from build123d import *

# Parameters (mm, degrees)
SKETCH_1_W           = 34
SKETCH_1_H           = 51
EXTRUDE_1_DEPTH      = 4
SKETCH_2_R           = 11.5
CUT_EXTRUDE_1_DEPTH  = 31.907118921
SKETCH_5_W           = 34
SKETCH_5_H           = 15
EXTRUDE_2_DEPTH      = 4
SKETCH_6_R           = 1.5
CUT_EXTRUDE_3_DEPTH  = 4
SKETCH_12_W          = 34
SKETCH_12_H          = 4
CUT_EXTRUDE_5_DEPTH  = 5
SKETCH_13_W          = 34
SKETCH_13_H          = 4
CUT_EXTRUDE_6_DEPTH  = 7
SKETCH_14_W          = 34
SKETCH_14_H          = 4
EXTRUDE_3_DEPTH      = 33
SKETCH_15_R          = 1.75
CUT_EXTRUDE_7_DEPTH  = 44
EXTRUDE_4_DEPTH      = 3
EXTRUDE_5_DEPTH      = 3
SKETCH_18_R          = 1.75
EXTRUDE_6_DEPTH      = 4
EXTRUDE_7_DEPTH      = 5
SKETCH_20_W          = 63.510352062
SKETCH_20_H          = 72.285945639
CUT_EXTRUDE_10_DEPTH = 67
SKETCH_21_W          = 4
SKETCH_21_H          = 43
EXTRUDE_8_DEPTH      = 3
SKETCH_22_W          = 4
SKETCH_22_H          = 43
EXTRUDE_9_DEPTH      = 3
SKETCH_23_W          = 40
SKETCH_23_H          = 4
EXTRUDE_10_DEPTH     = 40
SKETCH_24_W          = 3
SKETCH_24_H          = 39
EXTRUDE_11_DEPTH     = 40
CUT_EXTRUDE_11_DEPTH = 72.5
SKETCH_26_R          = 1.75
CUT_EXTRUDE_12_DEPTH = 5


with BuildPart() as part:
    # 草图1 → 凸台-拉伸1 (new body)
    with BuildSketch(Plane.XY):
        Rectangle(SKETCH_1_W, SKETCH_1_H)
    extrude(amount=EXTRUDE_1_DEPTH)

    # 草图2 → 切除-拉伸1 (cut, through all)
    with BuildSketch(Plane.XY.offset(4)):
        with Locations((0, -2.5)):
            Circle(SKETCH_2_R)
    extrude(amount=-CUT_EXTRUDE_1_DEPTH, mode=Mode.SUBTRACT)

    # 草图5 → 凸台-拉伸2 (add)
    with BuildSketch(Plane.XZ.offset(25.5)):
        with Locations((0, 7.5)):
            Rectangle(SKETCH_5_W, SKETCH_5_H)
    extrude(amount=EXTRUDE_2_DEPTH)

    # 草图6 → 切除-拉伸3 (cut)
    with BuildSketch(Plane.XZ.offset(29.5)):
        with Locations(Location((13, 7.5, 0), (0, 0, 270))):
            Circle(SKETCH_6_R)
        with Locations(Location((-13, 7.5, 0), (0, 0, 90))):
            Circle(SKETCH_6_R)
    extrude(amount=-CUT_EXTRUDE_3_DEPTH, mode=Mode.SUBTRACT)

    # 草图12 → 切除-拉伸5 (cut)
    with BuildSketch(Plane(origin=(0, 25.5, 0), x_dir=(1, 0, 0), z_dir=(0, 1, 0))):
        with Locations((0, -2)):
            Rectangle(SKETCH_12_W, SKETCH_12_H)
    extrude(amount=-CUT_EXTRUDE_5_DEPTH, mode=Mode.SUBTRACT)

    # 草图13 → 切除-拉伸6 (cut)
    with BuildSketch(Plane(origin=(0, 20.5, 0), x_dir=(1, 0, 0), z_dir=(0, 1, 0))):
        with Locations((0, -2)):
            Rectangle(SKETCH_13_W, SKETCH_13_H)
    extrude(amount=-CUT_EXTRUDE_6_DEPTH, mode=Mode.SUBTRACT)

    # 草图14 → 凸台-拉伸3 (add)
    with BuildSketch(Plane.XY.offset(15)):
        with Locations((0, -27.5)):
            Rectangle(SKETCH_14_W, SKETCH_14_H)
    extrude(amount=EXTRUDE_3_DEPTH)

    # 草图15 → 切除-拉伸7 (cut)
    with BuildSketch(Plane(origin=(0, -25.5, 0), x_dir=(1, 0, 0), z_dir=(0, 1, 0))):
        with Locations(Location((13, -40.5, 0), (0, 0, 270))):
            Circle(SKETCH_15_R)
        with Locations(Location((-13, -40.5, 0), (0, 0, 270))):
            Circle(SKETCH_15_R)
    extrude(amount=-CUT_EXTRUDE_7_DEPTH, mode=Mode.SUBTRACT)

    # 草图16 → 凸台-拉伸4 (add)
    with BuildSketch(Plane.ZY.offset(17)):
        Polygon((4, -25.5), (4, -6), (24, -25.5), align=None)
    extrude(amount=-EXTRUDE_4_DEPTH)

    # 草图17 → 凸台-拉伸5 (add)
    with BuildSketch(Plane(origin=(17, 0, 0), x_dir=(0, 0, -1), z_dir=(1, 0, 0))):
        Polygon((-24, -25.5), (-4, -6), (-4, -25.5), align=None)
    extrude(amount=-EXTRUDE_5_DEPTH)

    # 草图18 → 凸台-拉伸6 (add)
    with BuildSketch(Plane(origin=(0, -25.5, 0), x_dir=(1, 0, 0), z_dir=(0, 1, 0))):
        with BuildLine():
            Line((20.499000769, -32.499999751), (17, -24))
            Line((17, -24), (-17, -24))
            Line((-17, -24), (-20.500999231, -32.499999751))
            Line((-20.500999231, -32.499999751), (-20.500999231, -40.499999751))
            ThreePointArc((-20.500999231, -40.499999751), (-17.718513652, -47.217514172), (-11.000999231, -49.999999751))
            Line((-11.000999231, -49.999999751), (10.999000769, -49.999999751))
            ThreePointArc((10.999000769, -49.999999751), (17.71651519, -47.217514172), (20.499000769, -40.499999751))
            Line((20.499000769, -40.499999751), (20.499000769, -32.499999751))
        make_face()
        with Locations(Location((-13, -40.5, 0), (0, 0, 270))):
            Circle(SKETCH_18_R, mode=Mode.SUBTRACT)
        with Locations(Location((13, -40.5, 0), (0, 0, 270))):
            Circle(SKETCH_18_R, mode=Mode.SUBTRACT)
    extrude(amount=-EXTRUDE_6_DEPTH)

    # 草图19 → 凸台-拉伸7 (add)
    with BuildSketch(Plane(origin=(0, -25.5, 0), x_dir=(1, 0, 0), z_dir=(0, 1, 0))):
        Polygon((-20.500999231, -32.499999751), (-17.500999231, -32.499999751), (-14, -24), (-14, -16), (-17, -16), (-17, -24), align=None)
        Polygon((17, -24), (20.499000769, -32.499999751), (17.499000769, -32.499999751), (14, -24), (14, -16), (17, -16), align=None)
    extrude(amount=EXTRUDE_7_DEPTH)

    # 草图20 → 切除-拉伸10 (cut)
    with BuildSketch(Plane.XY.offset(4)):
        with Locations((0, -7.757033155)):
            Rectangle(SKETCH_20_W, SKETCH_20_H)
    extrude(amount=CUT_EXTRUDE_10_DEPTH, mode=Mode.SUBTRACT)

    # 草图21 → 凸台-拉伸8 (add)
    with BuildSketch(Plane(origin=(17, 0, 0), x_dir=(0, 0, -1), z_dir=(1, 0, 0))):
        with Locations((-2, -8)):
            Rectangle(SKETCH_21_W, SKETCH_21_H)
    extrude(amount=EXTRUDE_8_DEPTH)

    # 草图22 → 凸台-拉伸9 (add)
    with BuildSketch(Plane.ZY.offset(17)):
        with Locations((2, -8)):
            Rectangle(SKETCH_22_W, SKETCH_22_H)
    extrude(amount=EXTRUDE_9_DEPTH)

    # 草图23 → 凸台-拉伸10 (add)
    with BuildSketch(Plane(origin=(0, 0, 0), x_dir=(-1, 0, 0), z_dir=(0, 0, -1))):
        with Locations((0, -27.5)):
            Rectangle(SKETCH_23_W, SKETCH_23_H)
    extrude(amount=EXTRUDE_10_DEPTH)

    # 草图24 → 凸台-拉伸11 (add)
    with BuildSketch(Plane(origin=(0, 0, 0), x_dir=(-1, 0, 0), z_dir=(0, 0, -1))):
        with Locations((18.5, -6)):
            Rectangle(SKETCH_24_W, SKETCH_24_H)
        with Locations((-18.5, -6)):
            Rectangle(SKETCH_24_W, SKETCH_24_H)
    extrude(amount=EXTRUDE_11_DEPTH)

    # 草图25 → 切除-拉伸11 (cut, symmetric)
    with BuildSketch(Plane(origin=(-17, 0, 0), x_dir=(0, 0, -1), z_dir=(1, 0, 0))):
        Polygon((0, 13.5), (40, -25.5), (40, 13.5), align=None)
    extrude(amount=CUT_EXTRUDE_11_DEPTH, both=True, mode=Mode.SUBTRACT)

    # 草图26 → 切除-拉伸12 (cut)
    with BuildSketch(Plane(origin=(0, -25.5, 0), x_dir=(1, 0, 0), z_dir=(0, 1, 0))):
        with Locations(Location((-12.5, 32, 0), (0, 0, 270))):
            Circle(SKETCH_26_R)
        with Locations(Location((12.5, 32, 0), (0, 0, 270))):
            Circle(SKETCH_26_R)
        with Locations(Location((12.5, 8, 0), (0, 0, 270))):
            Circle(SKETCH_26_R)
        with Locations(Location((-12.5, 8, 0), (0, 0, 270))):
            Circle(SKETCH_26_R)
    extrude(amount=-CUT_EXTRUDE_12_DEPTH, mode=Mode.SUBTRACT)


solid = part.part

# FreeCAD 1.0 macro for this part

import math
import FreeCAD as App
import Part
import Sketcher
from FreeCAD import Vector
Q = App.Units.Quantity

doc = App.newDocument("Part")
params = doc.addObject("Spreadsheet::Sheet", "Params")
for row, (alias, value) in enumerate([
    ("sketch1_width", "34 mm"),
    ("sketch1_height", "51 mm"),
    ("pad1_length", "4 mm"),
    ("sketch2_diameter", "23 mm"),
    ("sketch3_width", "34 mm"),
    ("sketch3_height", "15 mm"),
    ("pad2_length", "4 mm"),
    ("sketch4_diameter", "3 mm"),
    ("pocket2_length", "4 mm"),
    ("sketch5_width", "34 mm"),
    ("sketch5_height", "4 mm"),
    ("pocket3_length", "5 mm"),
    ("sketch6_width", "34 mm"),
    ("sketch6_height", "4 mm"),
    ("pocket4_length", "7 mm"),
    ("sketch7_width", "34 mm"),
    ("sketch7_height", "4 mm"),
    ("pad3_length", "33 mm"),
    ("sketch8_diameter", "3.5 mm"),
    ("pocket5_length", "44 mm"),
    ("sketch9_height", "20 mm"),
    ("sketch9_width", "19.5 mm"),
    ("pad4_length", "3 mm"),
    ("sketch10_height", "20 mm"),
    ("sketch10_width", "19.5 mm"),
    ("pad5_length", "3 mm"),
    ("sketch11_diameter", "3.5 mm"),
    ("sketch11_radius", "9.5 mm"),
    ("sketch11_width", "34 mm"),
    ("sketch11_width2", "22 mm"),
    ("sketch11_height", "8 mm"),
    ("pad6_length", "4 mm"),
    ("sketch12_width", "3 mm"),
    ("sketch12_height", "8 mm"),
    ("pad7_length", "5 mm"),
    ("pocket6_length", "67 mm"),
    ("sketch14_width", "43 mm"),
    ("sketch14_height", "4 mm"),
    ("pad8_length", "3 mm"),
    ("sketch15_width", "43 mm"),
    ("sketch15_height", "4 mm"),
    ("pad9_length", "3 mm"),
    ("sketch16_width", "40 mm"),
    ("sketch16_height", "4 mm"),
    ("pad10_length", "40 mm"),
    ("sketch17_width", "3 mm"),
    ("sketch17_height", "39 mm"),
    ("pad11_length", "40 mm"),
    ("sketch18_width", "39 mm"),
    ("sketch18_height", "40 mm"),
    ("pocket7_length", "145 mm"),
    ("sketch19_diameter", "3.5 mm"),
    ("pocket8_length", "5 mm"),
], start=1):
    params.set(f"A{row}", alias)
    params.set(f"B{row}", "=" + value)
    params.setAlias(f"B{row}", alias)

body = doc.addObject("PartDesign::Body", "Body")

sketch1 = body.newObject("Sketcher::SketchObject", "Sketch")
sketch1.AttachmentSupport = (doc.getObject("XY_Plane"), [""])
sketch1.MapMode = "FlatFace"
sketch1.addGeometry([
    Part.LineSegment(Vector(-17, 26, 0), Vector(-17, -26, 0)),
    Part.LineSegment(Vector(-17, -26, 0), Vector(17, -26, 0)),
    Part.LineSegment(Vector(17, -26, 0), Vector(17, 26, 0)),
    Part.LineSegment(Vector(17, 26, 0), Vector(-17, 26, 0)),
], False)
sketch1.addConstraint([
    Sketcher.Constraint("Coincident", 0, 2, 1, 1),
    Sketcher.Constraint("Coincident", 1, 2, 2, 1),
    Sketcher.Constraint("Coincident", 2, 2, 3, 1),
    Sketcher.Constraint("Coincident", 3, 2, 0, 1),
    Sketcher.Constraint("Vertical", 0),
    Sketcher.Constraint("Horizontal", 1),
    Sketcher.Constraint("Vertical", 2),
    Sketcher.Constraint("Horizontal", 3),
    Sketcher.Constraint("Symmetric", 0, 2, 2, 2, -1, 1),
    Sketcher.Constraint("DistanceX", 1, 1, 1, 2, Q("34 mm")),
    Sketcher.Constraint("DistanceY", 0, 2, 0, 1, Q("51 mm")),
])
sketch1.setExpression("Constraints[9]", "Params.sketch1_width")
sketch1.setExpression("Constraints[10]", "Params.sketch1_height")
pad1 = body.newObject("PartDesign::Pad", "Pad")
pad1.Profile = sketch1
pad1.setExpression("Length", "Params.pad1_length")

sketch2 = body.newObject("Sketcher::SketchObject", "Sketch001")
sketch2.AttachmentSupport = (doc.getObject("XY_Plane"), [""])
sketch2.MapMode = "FlatFace"
sketch2.AttachmentOffset = App.Placement(Vector(0, 0, 4), App.Rotation())
sketch2.addGeometry(Part.Circle(Vector(0, -2, 0), Vector(0, 0, 1), 12), False)
sketch2.addConstraint([
    Sketcher.Constraint("PointOnObject", 0, 3, -2),
    Sketcher.Constraint("Diameter", 0, Q("23 mm")),
    Sketcher.Constraint("DistanceY", 0, 3, -1, 1, Q("2.5 mm")),
])
sketch2.setExpression("Constraints[1]", "Params.sketch2_diameter")
pocket1 = body.newObject("PartDesign::Pocket", "Pocket")
pocket1.Profile = sketch2
pocket1.Type = "ThroughAll"

sketch3 = body.newObject("Sketcher::SketchObject", "Sketch002")
sketch3.AttachmentSupport = (doc.getObject("XZ_Plane"), [""])
sketch3.MapMode = "FlatFace"
sketch3.AttachmentOffset = App.Placement(Vector(0, 0, 25.5), App.Rotation())
sketch3.addGeometry([
    Part.LineSegment(Vector(-17, 15, 0), Vector(-17, 0, 0)),
    Part.LineSegment(Vector(-17, 0, 0), Vector(17, 0, 0)),
    Part.LineSegment(Vector(17, 0, 0), Vector(17, 15, 0)),
    Part.LineSegment(Vector(17, 15, 0), Vector(-17, 15, 0)),
], False)
sketch3.addConstraint([
    Sketcher.Constraint("Coincident", 0, 2, 1, 1),
    Sketcher.Constraint("Coincident", 1, 2, 2, 1),
    Sketcher.Constraint("Coincident", 2, 2, 3, 1),
    Sketcher.Constraint("Coincident", 3, 2, 0, 1),
    Sketcher.Constraint("Vertical", 0),
    Sketcher.Constraint("Horizontal", 1),
    Sketcher.Constraint("Vertical", 2),
    Sketcher.Constraint("Horizontal", 3),
    Sketcher.Constraint("Symmetric", 0, 2, 1, 2, -1, 1),
    Sketcher.Constraint("DistanceX", 1, 1, 1, 2, Q("34 mm")),
    Sketcher.Constraint("DistanceY", 0, 2, 0, 1, Q("15 mm")),
])
sketch3.setExpression("Constraints[9]", "Params.sketch3_width")
sketch3.setExpression("Constraints[10]", "Params.sketch3_height")
pad2 = body.newObject("PartDesign::Pad", "Pad001")
pad2.Profile = sketch3
pad2.setExpression("Length", "Params.pad2_length")

sketch4 = body.newObject("Sketcher::SketchObject", "Sketch003")
sketch4.AttachmentSupport = (doc.getObject("XZ_Plane"), [""])
sketch4.MapMode = "FlatFace"
sketch4.AttachmentOffset = App.Placement(Vector(0, 0, 29.5), App.Rotation())
sketch4.addGeometry([
    Part.Circle(Vector(13, 7.5, 0), Vector(0, 0, 1), 1.5),
    Part.Circle(Vector(-13, 7.5, 0), Vector(0, 0, 1), 1.5),
], False)
sketch4.addConstraint([
    Sketcher.Constraint("Equal", 0, 1),
    Sketcher.Constraint("Symmetric", 0, 3, 1, 3, -2),
    Sketcher.Constraint("Diameter", 0, Q("3 mm")),
    Sketcher.Constraint("DistanceX", -1, 1, 0, 3, Q("13 mm")),
    Sketcher.Constraint("DistanceY", -1, 1, 0, 3, Q("7.5 mm")),
])
sketch4.setExpression("Constraints[2]", "Params.sketch4_diameter")
pocket2 = body.newObject("PartDesign::Pocket", "Pocket001")
pocket2.Profile = sketch4
pocket2.setExpression("Length", "Params.pocket2_length")

sketch5 = body.newObject("Sketcher::SketchObject", "Sketch004")
sketch5.AttachmentSupport = (doc.getObject("XZ_Plane"), [""])
sketch5.MapMode = "FlatFace"
sketch5.AttachmentOffset = App.Placement(Vector(0, 0, -25.5), App.Rotation())
sketch5.addGeometry([
    Part.LineSegment(Vector(-17, 0, 0), Vector(-17, 4, 0)),
    Part.LineSegment(Vector(-17, 4, 0), Vector(17, 4, 0)),
    Part.LineSegment(Vector(17, 4, 0), Vector(17, 0, 0)),
    Part.LineSegment(Vector(17, 0, 0), Vector(-17, 0, 0)),
], False)
sketch5.addConstraint([
    Sketcher.Constraint("Coincident", 0, 2, 1, 1),
    Sketcher.Constraint("Coincident", 1, 2, 2, 1),
    Sketcher.Constraint("Coincident", 2, 2, 3, 1),
    Sketcher.Constraint("Coincident", 3, 2, 0, 1),
    Sketcher.Constraint("Vertical", 0),
    Sketcher.Constraint("Horizontal", 1),
    Sketcher.Constraint("Vertical", 2),
    Sketcher.Constraint("Horizontal", 3),
    Sketcher.Constraint("Symmetric", 2, 2, 3, 2, -1, 1),
    Sketcher.Constraint("DistanceX", 1, 1, 1, 2, Q("34 mm")),
    Sketcher.Constraint("DistanceY", 0, 1, 0, 2, Q("4 mm")),
])
sketch5.setExpression("Constraints[9]", "Params.sketch5_width")
sketch5.setExpression("Constraints[10]", "Params.sketch5_height")
pocket3 = body.newObject("PartDesign::Pocket", "Pocket002")
pocket3.Profile = sketch5
pocket3.setExpression("Length", "Params.pocket3_length")
pocket3.Reversed = True

sketch6 = body.newObject("Sketcher::SketchObject", "Sketch005")
sketch6.AttachmentSupport = (doc.getObject("XZ_Plane"), [""])
sketch6.MapMode = "FlatFace"
sketch6.AttachmentOffset = App.Placement(Vector(0, 0, -20.5), App.Rotation())
sketch6.addGeometry([
    Part.LineSegment(Vector(-17, 0, 0), Vector(-17, 4, 0)),
    Part.LineSegment(Vector(-17, 4, 0), Vector(17, 4, 0)),
    Part.LineSegment(Vector(17, 4, 0), Vector(17, 0, 0)),
    Part.LineSegment(Vector(17, 0, 0), Vector(-17, 0, 0)),
], False)
sketch6.addConstraint([
    Sketcher.Constraint("Coincident", 0, 2, 1, 1),
    Sketcher.Constraint("Coincident", 1, 2, 2, 1),
    Sketcher.Constraint("Coincident", 2, 2, 3, 1),
    Sketcher.Constraint("Coincident", 3, 2, 0, 1),
    Sketcher.Constraint("Vertical", 0),
    Sketcher.Constraint("Horizontal", 1),
    Sketcher.Constraint("Vertical", 2),
    Sketcher.Constraint("Horizontal", 3),
    Sketcher.Constraint("Symmetric", 2, 2, 3, 2, -1, 1),
    Sketcher.Constraint("DistanceX", 1, 1, 1, 2, Q("34 mm")),
    Sketcher.Constraint("DistanceY", 0, 1, 0, 2, Q("4 mm")),
])
sketch6.setExpression("Constraints[9]", "Params.sketch6_width")
sketch6.setExpression("Constraints[10]", "Params.sketch6_height")
pocket4 = body.newObject("PartDesign::Pocket", "Pocket003")
pocket4.Profile = sketch6
pocket4.setExpression("Length", "Params.pocket4_length")
pocket4.Reversed = True

sketch7 = body.newObject("Sketcher::SketchObject", "Sketch006")
sketch7.AttachmentSupport = (doc.getObject("XY_Plane"), [""])
sketch7.MapMode = "FlatFace"
sketch7.AttachmentOffset = App.Placement(Vector(0, 0, 15), App.Rotation())
sketch7.addGeometry([
    Part.LineSegment(Vector(-17, -25.5, 0), Vector(-17, -29.5, 0)),
    Part.LineSegment(Vector(-17, -29.5, 0), Vector(17, -29.5, 0)),
    Part.LineSegment(Vector(17, -29.5, 0), Vector(17, -25.5, 0)),
    Part.LineSegment(Vector(17, -25.5, 0), Vector(-17, -25.5, 0)),
], False)
sketch7.addConstraint([
    Sketcher.Constraint("Coincident", 0, 2, 1, 1),
    Sketcher.Constraint("Coincident", 1, 2, 2, 1),
    Sketcher.Constraint("Coincident", 2, 2, 3, 1),
    Sketcher.Constraint("Coincident", 3, 2, 0, 1),
    Sketcher.Constraint("Vertical", 0),
    Sketcher.Constraint("Horizontal", 1),
    Sketcher.Constraint("Vertical", 2),
    Sketcher.Constraint("Horizontal", 3),
    Sketcher.Constraint("DistanceX", 1, 1, 1, 2, Q("34 mm")),
    Sketcher.Constraint("DistanceY", 0, 2, 0, 1, Q("4 mm")),
    Sketcher.Constraint("DistanceX", 0, 2, -1, 1, Q("17 mm")),
    Sketcher.Constraint("DistanceY", 0, 2, -1, 1, Q("29.5 mm")),
])
sketch7.setExpression("Constraints[8]", "Params.sketch7_width")
sketch7.setExpression("Constraints[9]", "Params.sketch7_height")
pad3 = body.newObject("PartDesign::Pad", "Pad002")
pad3.Profile = sketch7
pad3.setExpression("Length", "Params.pad3_length")

sketch8 = body.newObject("Sketcher::SketchObject", "Sketch007")
sketch8.AttachmentSupport = (doc.getObject("XZ_Plane"), [""])
sketch8.MapMode = "FlatFace"
sketch8.AttachmentOffset = App.Placement(Vector(0, 0, 25.5), App.Rotation())
sketch8.addGeometry([
    Part.Circle(Vector(13, 40.5, 0), Vector(0, 0, 1), 1.8),
    Part.Circle(Vector(-13, 40.5, 0), Vector(0, 0, 1), 1.8),
], False)
sketch8.addConstraint([
    Sketcher.Constraint("Equal", 0, 1),
    Sketcher.Constraint("Symmetric", 0, 3, 1, 3, -2),
    Sketcher.Constraint("Diameter", 0, Q("3.5 mm")),
    Sketcher.Constraint("DistanceX", -1, 1, 0, 3, Q("13 mm")),
    Sketcher.Constraint("DistanceY", -1, 1, 0, 3, Q("40.5 mm")),
])
sketch8.setExpression("Constraints[2]", "Params.sketch8_diameter")
pocket5 = body.newObject("PartDesign::Pocket", "Pocket004")
pocket5.Profile = sketch8
pocket5.setExpression("Length", "Params.pocket5_length")
pocket5.Reversed = True

sketch9 = body.newObject("Sketcher::SketchObject", "Sketch008")
sketch9.AttachmentSupport = (doc.getObject("YZ_Plane"), [""])
sketch9.MapMode = "FlatFace"
sketch9.AttachmentOffset = App.Placement(Vector(0, 0, -17), App.Rotation())
sketch9.addGeometry([
    Part.LineSegment(Vector(-6, 4, 0), Vector(-26, 4, 0)),
    Part.LineSegment(Vector(-26, 4, 0), Vector(-26, 24, 0)),
    Part.LineSegment(Vector(-26, 24, 0), Vector(-6, 4, 0)),
], False)
sketch9.addConstraint([
    Sketcher.Constraint("Coincident", 0, 2, 1, 1),
    Sketcher.Constraint("Coincident", 1, 2, 2, 1),
    Sketcher.Constraint("Coincident", 2, 2, 0, 1),
    Sketcher.Constraint("Horizontal", 0),
    Sketcher.Constraint("Vertical", 1),
    Sketcher.Constraint("DistanceY", 1, 1, 1, 2, Q("20 mm")),
    Sketcher.Constraint("DistanceX", 0, 2, 0, 1, Q("19.5 mm")),
    Sketcher.Constraint("DistanceY", -1, 1, 0, 2, Q("4 mm")),
    Sketcher.Constraint("DistanceX", 2, 2, -1, 1, Q("6 mm")),
])
sketch9.setExpression("Constraints[5]", "Params.sketch9_height")
sketch9.setExpression("Constraints[6]", "Params.sketch9_width")
pad4 = body.newObject("PartDesign::Pad", "Pad003")
pad4.Profile = sketch9
pad4.setExpression("Length", "Params.pad4_length")

sketch10 = body.newObject("Sketcher::SketchObject", "Sketch009")
sketch10.AttachmentSupport = (doc.getObject("YZ_Plane"), [""])
sketch10.MapMode = "FlatFace"
sketch10.AttachmentOffset = App.Placement(Vector(0, 0, 17), App.Rotation())
sketch10.addGeometry([
    Part.LineSegment(Vector(-6, 4, 0), Vector(-26, 24, 0)),
    Part.LineSegment(Vector(-26, 24, 0), Vector(-26, 4, 0)),
    Part.LineSegment(Vector(-26, 4, 0), Vector(-6, 4, 0)),
], False)
sketch10.addConstraint([
    Sketcher.Constraint("Coincident", 0, 2, 1, 1),
    Sketcher.Constraint("Coincident", 1, 2, 2, 1),
    Sketcher.Constraint("Coincident", 2, 2, 0, 1),
    Sketcher.Constraint("Vertical", 1),
    Sketcher.Constraint("Horizontal", 2),
    Sketcher.Constraint("DistanceY", 1, 2, 1, 1, Q("20 mm")),
    Sketcher.Constraint("DistanceX", 2, 1, 2, 2, Q("19.5 mm")),
    Sketcher.Constraint("DistanceY", -1, 1, 0, 2, Q("24 mm")),
    Sketcher.Constraint("DistanceX", 2, 2, -1, 1, Q("6 mm")),
])
sketch10.setExpression("Constraints[5]", "Params.sketch10_height")
sketch10.setExpression("Constraints[6]", "Params.sketch10_width")
pad5 = body.newObject("PartDesign::Pad", "Pad004")
pad5.Profile = sketch10
pad5.setExpression("Length", "Params.pad5_length")
pad5.Reversed = True

sketch11 = body.newObject("Sketcher::SketchObject", "Sketch010")
sketch11.AttachmentSupport = (doc.getObject("XZ_Plane"), [""])
sketch11.MapMode = "FlatFace"
sketch11.AttachmentOffset = App.Placement(Vector(0, 0, 25.5), App.Rotation())
sketch11.addGeometry([
    Part.LineSegment(Vector(20.5, 32.5, 0), Vector(17, 24, 0)),
    Part.LineSegment(Vector(17, 24, 0), Vector(-17, 24, 0)),
    Part.LineSegment(Vector(-17, 24, 0), Vector(-20.5, 32.5, 0)),
    Part.LineSegment(Vector(-20.5, 32.5, 0), Vector(-20.5, 40.5, 0)),
    Part.ArcOfCircle(Part.Circle(Vector(-11, 40.5, 0), Vector(0, 0, 1), 9.5), math.radians(90), math.radians(180)),
    Part.LineSegment(Vector(-11, 50, 0), Vector(11, 50, 0)),
    Part.ArcOfCircle(Part.Circle(Vector(11, 40.5, 0), Vector(0, 0, 1), 9.5), math.radians(0), math.radians(90)),
    Part.LineSegment(Vector(20.5, 40.5, 0), Vector(20.5, 32.5, 0)),
    Part.Circle(Vector(-13, 40.5, 0), Vector(0, 0, 1), 1.8),
    Part.Circle(Vector(13, 40.5, 0), Vector(0, 0, 1), 1.8),
], False)
sketch11.addConstraint([
    Sketcher.Constraint("Coincident", 0, 2, 1, 1),
    Sketcher.Constraint("Coincident", 1, 2, 2, 1),
    Sketcher.Constraint("Coincident", 2, 2, 3, 1),
    Sketcher.Constraint("Tangent", 3, 2, 4, 2),
    Sketcher.Constraint("Tangent", 4, 1, 5, 1),
    Sketcher.Constraint("Tangent", 5, 2, 6, 2),
    Sketcher.Constraint("Tangent", 6, 1, 7, 1),
    Sketcher.Constraint("Coincident", 7, 2, 0, 1),
    Sketcher.Constraint("Horizontal", 1),
    Sketcher.Constraint("Vertical", 3),
    Sketcher.Constraint("Horizontal", 5),
    Sketcher.Constraint("Vertical", 7),
    Sketcher.Constraint("Equal", 4, 6),
    Sketcher.Constraint("Equal", 8, 9),
    Sketcher.Constraint("Symmetric", 8, 3, 9, 3, -2),
    Sketcher.Constraint("Horizontal", 6, 3, 8, 3),
    Sketcher.Constraint("Horizontal", 2, 2, 7, 2),
    Sketcher.Constraint("Diameter", 8, Q("3.5 mm")),
    Sketcher.Constraint("Radius", 4, Q("9.5 mm")),
    Sketcher.Constraint("DistanceX", 1, 2, 1, 1, Q("34 mm")),
    Sketcher.Constraint("DistanceX", 5, 1, 5, 2, Q("22 mm")),
    Sketcher.Constraint("DistanceY", 3, 1, 3, 2, Q("8 mm")),
    Sketcher.Constraint("DistanceX", 8, 3, -1, 1, Q("13 mm")),
    Sketcher.Constraint("DistanceX", -1, 1, 0, 2, Q("17 mm")),
    Sketcher.Constraint("DistanceY", -1, 1, 0, 2, Q("24 mm")),
    Sketcher.Constraint("DistanceY", -1, 1, 4, 1, Q("50 mm")),
    Sketcher.Constraint("DistanceX", 4, 3, -1, 1, Q("11.000999 mm")),
])
sketch11.setExpression("Constraints[17]", "Params.sketch11_diameter")
sketch11.setExpression("Constraints[18]", "Params.sketch11_radius")
sketch11.setExpression("Constraints[19]", "Params.sketch11_width")
sketch11.setExpression("Constraints[20]", "Params.sketch11_width2")
sketch11.setExpression("Constraints[21]", "Params.sketch11_height")
pad6 = body.newObject("PartDesign::Pad", "Pad005")
pad6.Profile = sketch11
pad6.setExpression("Length", "Params.pad6_length")

sketch12 = body.newObject("Sketcher::SketchObject", "Sketch011")
sketch12.AttachmentSupport = (doc.getObject("XZ_Plane"), [""])
sketch12.MapMode = "FlatFace"
sketch12.AttachmentOffset = App.Placement(Vector(0, 0, 25.5), App.Rotation())
sketch12.addGeometry([
    Part.LineSegment(Vector(-20.5, 32.5, 0), Vector(-17.5, 32.5, 0)),
    Part.LineSegment(Vector(-17.5, 32.5, 0), Vector(-14, 24, 0)),
    Part.LineSegment(Vector(-14, 24, 0), Vector(-14, 16, 0)),
    Part.LineSegment(Vector(-14, 16, 0), Vector(-17, 16, 0)),
    Part.LineSegment(Vector(-17, 16, 0), Vector(-17, 24, 0)),
    Part.LineSegment(Vector(-17, 24, 0), Vector(-20.5, 32.5, 0)),
    Part.LineSegment(Vector(20.5, 32.5, 0), Vector(17, 24, 0)),
    Part.LineSegment(Vector(17, 24, 0), Vector(17, 16, 0)),
    Part.LineSegment(Vector(17, 16, 0), Vector(14, 16, 0)),
    Part.LineSegment(Vector(14, 16, 0), Vector(14, 24, 0)),
    Part.LineSegment(Vector(14, 24, 0), Vector(17.5, 32.5, 0)),
    Part.LineSegment(Vector(17.5, 32.5, 0), Vector(20.5, 32.5, 0)),
], False)
sketch12.addConstraint([
    Sketcher.Constraint("Coincident", 0, 2, 1, 1),
    Sketcher.Constraint("Coincident", 1, 2, 2, 1),
    Sketcher.Constraint("Coincident", 2, 2, 3, 1),
    Sketcher.Constraint("Coincident", 3, 2, 4, 1),
    Sketcher.Constraint("Coincident", 4, 2, 5, 1),
    Sketcher.Constraint("Coincident", 5, 2, 0, 1),
    Sketcher.Constraint("Coincident", 6, 2, 7, 1),
    Sketcher.Constraint("Coincident", 7, 2, 8, 1),
    Sketcher.Constraint("Coincident", 8, 2, 9, 1),
    Sketcher.Constraint("Coincident", 9, 2, 10, 1),
    Sketcher.Constraint("Coincident", 10, 2, 11, 1),
    Sketcher.Constraint("Coincident", 11, 2, 6, 1),
    Sketcher.Constraint("Horizontal", 0),
    Sketcher.Constraint("Vertical", 2),
    Sketcher.Constraint("Horizontal", 3),
    Sketcher.Constraint("Vertical", 4),
    Sketcher.Constraint("Vertical", 7),
    Sketcher.Constraint("Horizontal", 8),
    Sketcher.Constraint("Vertical", 9),
    Sketcher.Constraint("Horizontal", 11),
    Sketcher.Constraint("Symmetric", 4, 2, 6, 2, -2),
    Sketcher.Constraint("Symmetric", 2, 2, 8, 2, -2),
    Sketcher.Constraint("Parallel", 1, 5),
    Sketcher.Constraint("Parallel", 6, 10),
    Sketcher.Constraint("Horizontal", 1, 2, 4, 2),
    Sketcher.Constraint("Horizontal", 6, 2, 9, 2),
    Sketcher.Constraint("Horizontal", 5, 2, 10, 2),
    Sketcher.Constraint("DistanceX", 0, 1, 0, 2, Q("3 mm")),
    Sketcher.Constraint("DistanceY", 2, 2, 2, 1, Q("8 mm")),
    Sketcher.Constraint("DistanceX", 1, 2, -1, 1, Q("14 mm")),
    Sketcher.Constraint("DistanceY", -1, 1, 1, 2, Q("24 mm")),
    Sketcher.Constraint("DistanceY", -1, 1, 0, 2, Q("32.5 mm")),
    Sketcher.Constraint("DistanceX", 0, 2, -1, 1, Q("17.500999 mm")),
    Sketcher.Constraint("DistanceX", -1, 1, 10, 2, Q("17.499001 mm")),
])
sketch12.setExpression("Constraints[27]", "Params.sketch12_width")
sketch12.setExpression("Constraints[28]", "Params.sketch12_height")
pad7 = body.newObject("PartDesign::Pad", "Pad006")
pad7.Profile = sketch12
pad7.setExpression("Length", "Params.pad7_length")
pad7.Reversed = True

sketch13 = body.newObject("Sketcher::SketchObject", "Sketch012")
sketch13.AttachmentSupport = (doc.getObject("XY_Plane"), [""])
sketch13.MapMode = "FlatFace"
sketch13.AttachmentOffset = App.Placement(Vector(0, 0, 4), App.Rotation())
sketch13.addGeometry([
    Part.LineSegment(Vector(-32, 28, 0), Vector(-32, -44, 0)),
    Part.LineSegment(Vector(-32, -44, 0), Vector(32, -44, 0)),
    Part.LineSegment(Vector(32, -44, 0), Vector(32, 28, 0)),
    Part.LineSegment(Vector(32, 28, 0), Vector(-32, 28, 0)),
], False)
sketch13.addConstraint([
    Sketcher.Constraint("Coincident", 0, 2, 1, 1),
    Sketcher.Constraint("Coincident", 1, 2, 2, 1),
    Sketcher.Constraint("Coincident", 2, 2, 3, 1),
    Sketcher.Constraint("Coincident", 3, 2, 0, 1),
    Sketcher.Constraint("Vertical", 0),
    Sketcher.Constraint("Horizontal", 1),
    Sketcher.Constraint("Vertical", 2),
    Sketcher.Constraint("Horizontal", 3),
    Sketcher.Constraint("DistanceX", 1, 1, 1, 2, Q("63.510352 mm")),
    Sketcher.Constraint("DistanceY", 0, 2, 0, 1, Q("72.285946 mm")),
    Sketcher.Constraint("DistanceY", -1, 1, 2, 2, Q("28.38594 mm")),
    Sketcher.Constraint("DistanceX", 0, 2, -1, 1, Q("31.755176 mm")),
])
pocket6 = body.newObject("PartDesign::Pocket", "Pocket005")
pocket6.Profile = sketch13
pocket6.setExpression("Length", "Params.pocket6_length")
pocket6.Reversed = True

sketch14 = body.newObject("Sketcher::SketchObject", "Sketch013")
sketch14.AttachmentSupport = (doc.getObject("YZ_Plane"), [""])
sketch14.MapMode = "FlatFace"
sketch14.AttachmentOffset = App.Placement(Vector(0, 0, 17), App.Rotation())
sketch14.addGeometry([
    Part.LineSegment(Vector(13.5, 4, 0), Vector(-29.5, 4, 0)),
    Part.LineSegment(Vector(-29.5, 4, 0), Vector(-29.5, 0, 0)),
    Part.LineSegment(Vector(-29.5, 0, 0), Vector(13.5, 0, 0)),
    Part.LineSegment(Vector(13.5, 0, 0), Vector(13.5, 4, 0)),
], False)
sketch14.addConstraint([
    Sketcher.Constraint("Coincident", 0, 2, 1, 1),
    Sketcher.Constraint("Coincident", 1, 2, 2, 1),
    Sketcher.Constraint("Coincident", 2, 2, 3, 1),
    Sketcher.Constraint("Coincident", 3, 2, 0, 1),
    Sketcher.Constraint("Horizontal", 0),
    Sketcher.Constraint("Vertical", 1),
    Sketcher.Constraint("Horizontal", 2),
    Sketcher.Constraint("Vertical", 3),
    Sketcher.Constraint("PointOnObject", 1, 2, -1),
    Sketcher.Constraint("DistanceX", 0, 2, 0, 1, Q("43 mm")),
    Sketcher.Constraint("DistanceY", 1, 2, 1, 1, Q("4 mm")),
    Sketcher.Constraint("DistanceX", 0, 2, -1, 1, Q("29.5 mm")),
])
sketch14.setExpression("Constraints[9]", "Params.sketch14_width")
sketch14.setExpression("Constraints[10]", "Params.sketch14_height")
pad8 = body.newObject("PartDesign::Pad", "Pad007")
pad8.Profile = sketch14
pad8.setExpression("Length", "Params.pad8_length")

sketch15 = body.newObject("Sketcher::SketchObject", "Sketch014")
sketch15.AttachmentSupport = (doc.getObject("YZ_Plane"), [""])
sketch15.MapMode = "FlatFace"
sketch15.AttachmentOffset = App.Placement(Vector(0, 0, -17), App.Rotation())
sketch15.addGeometry([
    Part.LineSegment(Vector(13.5, 0, 0), Vector(-29.5, 0, 0)),
    Part.LineSegment(Vector(-29.5, 0, 0), Vector(-29.5, 4, 0)),
    Part.LineSegment(Vector(-29.5, 4, 0), Vector(13.5, 4, 0)),
    Part.LineSegment(Vector(13.5, 4, 0), Vector(13.5, 0, 0)),
], False)
sketch15.addConstraint([
    Sketcher.Constraint("Coincident", 0, 2, 1, 1),
    Sketcher.Constraint("Coincident", 1, 2, 2, 1),
    Sketcher.Constraint("Coincident", 2, 2, 3, 1),
    Sketcher.Constraint("Coincident", 3, 2, 0, 1),
    Sketcher.Constraint("Horizontal", 0),
    Sketcher.Constraint("Vertical", 1),
    Sketcher.Constraint("Horizontal", 2),
    Sketcher.Constraint("Vertical", 3),
    Sketcher.Constraint("PointOnObject", 0, 2, -1),
    Sketcher.Constraint("DistanceX", 0, 2, 0, 1, Q("43 mm")),
    Sketcher.Constraint("DistanceY", 1, 1, 1, 2, Q("4 mm")),
    Sketcher.Constraint("DistanceX", 0, 2, -1, 1, Q("29.5 mm")),
])
sketch15.setExpression("Constraints[9]", "Params.sketch15_width")
sketch15.setExpression("Constraints[10]", "Params.sketch15_height")
pad9 = body.newObject("PartDesign::Pad", "Pad008")
pad9.Profile = sketch15
pad9.setExpression("Length", "Params.pad9_length")
pad9.Reversed = True

sketch16 = body.newObject("Sketcher::SketchObject", "Sketch015")
sketch16.AttachmentSupport = (doc.getObject("XY_Plane"), [""])
sketch16.MapMode = "FlatFace"
sketch16.addGeometry([
    Part.LineSegment(Vector(20, -25.5, 0), Vector(20, -29.5, 0)),
    Part.LineSegment(Vector(20, -29.5, 0), Vector(-20, -29.5, 0)),
    Part.LineSegment(Vector(-20, -29.5, 0), Vector(-20, -25.5, 0)),
    Part.LineSegment(Vector(-20, -25.5, 0), Vector(20, -25.5, 0)),
], False)
sketch16.addConstraint([
    Sketcher.Constraint("Coincident", 0, 2, 1, 1),
    Sketcher.Constraint("Coincident", 1, 2, 2, 1),
    Sketcher.Constraint("Coincident", 2, 2, 3, 1),
    Sketcher.Constraint("Coincident", 3, 2, 0, 1),
    Sketcher.Constraint("Vertical", 0),
    Sketcher.Constraint("Horizontal", 1),
    Sketcher.Constraint("Vertical", 2),
    Sketcher.Constraint("Horizontal", 3),
    Sketcher.Constraint("DistanceX", 1, 2, 1, 1, Q("40 mm")),
    Sketcher.Constraint("DistanceY", 0, 2, 0, 1, Q("4 mm")),
    Sketcher.Constraint("DistanceX", -1, 1, 0, 2, Q("20 mm")),
    Sketcher.Constraint("DistanceY", 0, 2, -1, 1, Q("29.5 mm")),
])
sketch16.setExpression("Constraints[8]", "Params.sketch16_width")
sketch16.setExpression("Constraints[9]", "Params.sketch16_height")
pad10 = body.newObject("PartDesign::Pad", "Pad009")
pad10.Profile = sketch16
pad10.setExpression("Length", "Params.pad10_length")
pad10.Reversed = True

sketch17 = body.newObject("Sketcher::SketchObject", "Sketch016")
sketch17.AttachmentSupport = (doc.getObject("XY_Plane"), [""])
sketch17.MapMode = "FlatFace"
sketch17.addGeometry([
    Part.LineSegment(Vector(-17, 13.5, 0), Vector(-17, -25.5, 0)),
    Part.LineSegment(Vector(-17, -25.5, 0), Vector(-20, -25.5, 0)),
    Part.LineSegment(Vector(-20, -25.5, 0), Vector(-20, 13.5, 0)),
    Part.LineSegment(Vector(-20, 13.5, 0), Vector(-17, 13.5, 0)),
    Part.LineSegment(Vector(20, 13.5, 0), Vector(20, -25.5, 0)),
    Part.LineSegment(Vector(20, -25.5, 0), Vector(17, -25.5, 0)),
    Part.LineSegment(Vector(17, -25.5, 0), Vector(17, 13.5, 0)),
    Part.LineSegment(Vector(17, 13.5, 0), Vector(20, 13.5, 0)),
], False)
sketch17.addConstraint([
    Sketcher.Constraint("Coincident", 0, 2, 1, 1),
    Sketcher.Constraint("Coincident", 1, 2, 2, 1),
    Sketcher.Constraint("Coincident", 2, 2, 3, 1),
    Sketcher.Constraint("Coincident", 3, 2, 0, 1),
    Sketcher.Constraint("Coincident", 4, 2, 5, 1),
    Sketcher.Constraint("Coincident", 5, 2, 6, 1),
    Sketcher.Constraint("Coincident", 6, 2, 7, 1),
    Sketcher.Constraint("Coincident", 7, 2, 4, 1),
    Sketcher.Constraint("Vertical", 0),
    Sketcher.Constraint("Horizontal", 1),
    Sketcher.Constraint("Vertical", 2),
    Sketcher.Constraint("Horizontal", 3),
    Sketcher.Constraint("Vertical", 4),
    Sketcher.Constraint("Horizontal", 5),
    Sketcher.Constraint("Vertical", 6),
    Sketcher.Constraint("Horizontal", 7),
    Sketcher.Constraint("Symmetric", 1, 2, 4, 2, -2),
    Sketcher.Constraint("Symmetric", 3, 2, 6, 2, -2),
    Sketcher.Constraint("DistanceX", 1, 2, 1, 1, Q("3 mm")),
    Sketcher.Constraint("DistanceY", 0, 2, 0, 1, Q("39 mm")),
    Sketcher.Constraint("DistanceX", 0, 2, -1, 1, Q("17 mm")),
    Sketcher.Constraint("DistanceY", 0, 2, -1, 1, Q("25.5 mm")),
])
sketch17.setExpression("Constraints[18]", "Params.sketch17_width")
sketch17.setExpression("Constraints[19]", "Params.sketch17_height")
pad11 = body.newObject("PartDesign::Pad", "Pad010")
pad11.Profile = sketch17
pad11.setExpression("Length", "Params.pad11_length")
pad11.Reversed = True

sketch18 = body.newObject("Sketcher::SketchObject", "Sketch017")
sketch18.AttachmentSupport = (doc.getObject("YZ_Plane"), [""])
sketch18.MapMode = "FlatFace"
sketch18.AttachmentOffset = App.Placement(Vector(0, 0, -17), App.Rotation())
sketch18.addGeometry([
    Part.LineSegment(Vector(14, 0, 0), Vector(-26, -40, 0)),
    Part.LineSegment(Vector(-26, -40, 0), Vector(14, -40, 0)),
    Part.LineSegment(Vector(14, -40, 0), Vector(14, 0, 0)),
], False)
sketch18.addConstraint([
    Sketcher.Constraint("Coincident", 0, 2, 1, 1),
    Sketcher.Constraint("Coincident", 1, 2, 2, 1),
    Sketcher.Constraint("Coincident", 2, 2, 0, 1),
    Sketcher.Constraint("Horizontal", 1),
    Sketcher.Constraint("Vertical", 2),
    Sketcher.Constraint("PointOnObject", 2, 2, -1),
    Sketcher.Constraint("DistanceX", 1, 1, 1, 2, Q("39 mm")),
    Sketcher.Constraint("DistanceY", 2, 1, 2, 2, Q("40 mm")),
    Sketcher.Constraint("DistanceX", 0, 2, -1, 1, Q("25.5 mm")),
])
sketch18.setExpression("Constraints[6]", "Params.sketch18_width")
sketch18.setExpression("Constraints[7]", "Params.sketch18_height")
pocket7 = body.newObject("PartDesign::Pocket", "Pocket006")
pocket7.Profile = sketch18
pocket7.setExpression("Length", "Params.pocket7_length")
pocket7.Midplane = True

sketch19 = body.newObject("Sketcher::SketchObject", "Sketch018")
sketch19.AttachmentSupport = (doc.getObject("XZ_Plane"), [""])
sketch19.MapMode = "FlatFace"
sketch19.AttachmentOffset = App.Placement(Vector(0, 0, 25.5), App.Rotation())
sketch19.addGeometry([
    Part.Circle(Vector(-12.5, -32, 0), Vector(0, 0, 1), 1.8),
    Part.Circle(Vector(12.5, -32, 0), Vector(0, 0, 1), 1.8),
    Part.Circle(Vector(12.5, -8, 0), Vector(0, 0, 1), 1.8),
    Part.Circle(Vector(-12.5, -8, 0), Vector(0, 0, 1), 1.8),
], False)
sketch19.addConstraint([
    Sketcher.Constraint("Equal", 0, 1),
    Sketcher.Constraint("Equal", 1, 2),
    Sketcher.Constraint("Equal", 2, 3),
    Sketcher.Constraint("Symmetric", 0, 3, 1, 3, -2),
    Sketcher.Constraint("Symmetric", 2, 3, 3, 3, -2),
    Sketcher.Constraint("Vertical", 1, 3, 2, 3),
    Sketcher.Constraint("Diameter", 0, Q("3.5 mm")),
    Sketcher.Constraint("DistanceY", 0, 3, -1, 1, Q("32 mm")),
    Sketcher.Constraint("DistanceY", 2, 3, -1, 1, Q("8 mm")),
    Sketcher.Constraint("DistanceX", 0, 3, 1, 3, Q("25 mm")),
])
sketch19.setExpression("Constraints[6]", "Params.sketch19_diameter")
pocket8 = body.newObject("PartDesign::Pocket", "Pocket007")
pocket8.Profile = sketch19
pocket8.setExpression("Length", "Params.pocket8_length")
pocket8.Reversed = True

doc.recompute()
